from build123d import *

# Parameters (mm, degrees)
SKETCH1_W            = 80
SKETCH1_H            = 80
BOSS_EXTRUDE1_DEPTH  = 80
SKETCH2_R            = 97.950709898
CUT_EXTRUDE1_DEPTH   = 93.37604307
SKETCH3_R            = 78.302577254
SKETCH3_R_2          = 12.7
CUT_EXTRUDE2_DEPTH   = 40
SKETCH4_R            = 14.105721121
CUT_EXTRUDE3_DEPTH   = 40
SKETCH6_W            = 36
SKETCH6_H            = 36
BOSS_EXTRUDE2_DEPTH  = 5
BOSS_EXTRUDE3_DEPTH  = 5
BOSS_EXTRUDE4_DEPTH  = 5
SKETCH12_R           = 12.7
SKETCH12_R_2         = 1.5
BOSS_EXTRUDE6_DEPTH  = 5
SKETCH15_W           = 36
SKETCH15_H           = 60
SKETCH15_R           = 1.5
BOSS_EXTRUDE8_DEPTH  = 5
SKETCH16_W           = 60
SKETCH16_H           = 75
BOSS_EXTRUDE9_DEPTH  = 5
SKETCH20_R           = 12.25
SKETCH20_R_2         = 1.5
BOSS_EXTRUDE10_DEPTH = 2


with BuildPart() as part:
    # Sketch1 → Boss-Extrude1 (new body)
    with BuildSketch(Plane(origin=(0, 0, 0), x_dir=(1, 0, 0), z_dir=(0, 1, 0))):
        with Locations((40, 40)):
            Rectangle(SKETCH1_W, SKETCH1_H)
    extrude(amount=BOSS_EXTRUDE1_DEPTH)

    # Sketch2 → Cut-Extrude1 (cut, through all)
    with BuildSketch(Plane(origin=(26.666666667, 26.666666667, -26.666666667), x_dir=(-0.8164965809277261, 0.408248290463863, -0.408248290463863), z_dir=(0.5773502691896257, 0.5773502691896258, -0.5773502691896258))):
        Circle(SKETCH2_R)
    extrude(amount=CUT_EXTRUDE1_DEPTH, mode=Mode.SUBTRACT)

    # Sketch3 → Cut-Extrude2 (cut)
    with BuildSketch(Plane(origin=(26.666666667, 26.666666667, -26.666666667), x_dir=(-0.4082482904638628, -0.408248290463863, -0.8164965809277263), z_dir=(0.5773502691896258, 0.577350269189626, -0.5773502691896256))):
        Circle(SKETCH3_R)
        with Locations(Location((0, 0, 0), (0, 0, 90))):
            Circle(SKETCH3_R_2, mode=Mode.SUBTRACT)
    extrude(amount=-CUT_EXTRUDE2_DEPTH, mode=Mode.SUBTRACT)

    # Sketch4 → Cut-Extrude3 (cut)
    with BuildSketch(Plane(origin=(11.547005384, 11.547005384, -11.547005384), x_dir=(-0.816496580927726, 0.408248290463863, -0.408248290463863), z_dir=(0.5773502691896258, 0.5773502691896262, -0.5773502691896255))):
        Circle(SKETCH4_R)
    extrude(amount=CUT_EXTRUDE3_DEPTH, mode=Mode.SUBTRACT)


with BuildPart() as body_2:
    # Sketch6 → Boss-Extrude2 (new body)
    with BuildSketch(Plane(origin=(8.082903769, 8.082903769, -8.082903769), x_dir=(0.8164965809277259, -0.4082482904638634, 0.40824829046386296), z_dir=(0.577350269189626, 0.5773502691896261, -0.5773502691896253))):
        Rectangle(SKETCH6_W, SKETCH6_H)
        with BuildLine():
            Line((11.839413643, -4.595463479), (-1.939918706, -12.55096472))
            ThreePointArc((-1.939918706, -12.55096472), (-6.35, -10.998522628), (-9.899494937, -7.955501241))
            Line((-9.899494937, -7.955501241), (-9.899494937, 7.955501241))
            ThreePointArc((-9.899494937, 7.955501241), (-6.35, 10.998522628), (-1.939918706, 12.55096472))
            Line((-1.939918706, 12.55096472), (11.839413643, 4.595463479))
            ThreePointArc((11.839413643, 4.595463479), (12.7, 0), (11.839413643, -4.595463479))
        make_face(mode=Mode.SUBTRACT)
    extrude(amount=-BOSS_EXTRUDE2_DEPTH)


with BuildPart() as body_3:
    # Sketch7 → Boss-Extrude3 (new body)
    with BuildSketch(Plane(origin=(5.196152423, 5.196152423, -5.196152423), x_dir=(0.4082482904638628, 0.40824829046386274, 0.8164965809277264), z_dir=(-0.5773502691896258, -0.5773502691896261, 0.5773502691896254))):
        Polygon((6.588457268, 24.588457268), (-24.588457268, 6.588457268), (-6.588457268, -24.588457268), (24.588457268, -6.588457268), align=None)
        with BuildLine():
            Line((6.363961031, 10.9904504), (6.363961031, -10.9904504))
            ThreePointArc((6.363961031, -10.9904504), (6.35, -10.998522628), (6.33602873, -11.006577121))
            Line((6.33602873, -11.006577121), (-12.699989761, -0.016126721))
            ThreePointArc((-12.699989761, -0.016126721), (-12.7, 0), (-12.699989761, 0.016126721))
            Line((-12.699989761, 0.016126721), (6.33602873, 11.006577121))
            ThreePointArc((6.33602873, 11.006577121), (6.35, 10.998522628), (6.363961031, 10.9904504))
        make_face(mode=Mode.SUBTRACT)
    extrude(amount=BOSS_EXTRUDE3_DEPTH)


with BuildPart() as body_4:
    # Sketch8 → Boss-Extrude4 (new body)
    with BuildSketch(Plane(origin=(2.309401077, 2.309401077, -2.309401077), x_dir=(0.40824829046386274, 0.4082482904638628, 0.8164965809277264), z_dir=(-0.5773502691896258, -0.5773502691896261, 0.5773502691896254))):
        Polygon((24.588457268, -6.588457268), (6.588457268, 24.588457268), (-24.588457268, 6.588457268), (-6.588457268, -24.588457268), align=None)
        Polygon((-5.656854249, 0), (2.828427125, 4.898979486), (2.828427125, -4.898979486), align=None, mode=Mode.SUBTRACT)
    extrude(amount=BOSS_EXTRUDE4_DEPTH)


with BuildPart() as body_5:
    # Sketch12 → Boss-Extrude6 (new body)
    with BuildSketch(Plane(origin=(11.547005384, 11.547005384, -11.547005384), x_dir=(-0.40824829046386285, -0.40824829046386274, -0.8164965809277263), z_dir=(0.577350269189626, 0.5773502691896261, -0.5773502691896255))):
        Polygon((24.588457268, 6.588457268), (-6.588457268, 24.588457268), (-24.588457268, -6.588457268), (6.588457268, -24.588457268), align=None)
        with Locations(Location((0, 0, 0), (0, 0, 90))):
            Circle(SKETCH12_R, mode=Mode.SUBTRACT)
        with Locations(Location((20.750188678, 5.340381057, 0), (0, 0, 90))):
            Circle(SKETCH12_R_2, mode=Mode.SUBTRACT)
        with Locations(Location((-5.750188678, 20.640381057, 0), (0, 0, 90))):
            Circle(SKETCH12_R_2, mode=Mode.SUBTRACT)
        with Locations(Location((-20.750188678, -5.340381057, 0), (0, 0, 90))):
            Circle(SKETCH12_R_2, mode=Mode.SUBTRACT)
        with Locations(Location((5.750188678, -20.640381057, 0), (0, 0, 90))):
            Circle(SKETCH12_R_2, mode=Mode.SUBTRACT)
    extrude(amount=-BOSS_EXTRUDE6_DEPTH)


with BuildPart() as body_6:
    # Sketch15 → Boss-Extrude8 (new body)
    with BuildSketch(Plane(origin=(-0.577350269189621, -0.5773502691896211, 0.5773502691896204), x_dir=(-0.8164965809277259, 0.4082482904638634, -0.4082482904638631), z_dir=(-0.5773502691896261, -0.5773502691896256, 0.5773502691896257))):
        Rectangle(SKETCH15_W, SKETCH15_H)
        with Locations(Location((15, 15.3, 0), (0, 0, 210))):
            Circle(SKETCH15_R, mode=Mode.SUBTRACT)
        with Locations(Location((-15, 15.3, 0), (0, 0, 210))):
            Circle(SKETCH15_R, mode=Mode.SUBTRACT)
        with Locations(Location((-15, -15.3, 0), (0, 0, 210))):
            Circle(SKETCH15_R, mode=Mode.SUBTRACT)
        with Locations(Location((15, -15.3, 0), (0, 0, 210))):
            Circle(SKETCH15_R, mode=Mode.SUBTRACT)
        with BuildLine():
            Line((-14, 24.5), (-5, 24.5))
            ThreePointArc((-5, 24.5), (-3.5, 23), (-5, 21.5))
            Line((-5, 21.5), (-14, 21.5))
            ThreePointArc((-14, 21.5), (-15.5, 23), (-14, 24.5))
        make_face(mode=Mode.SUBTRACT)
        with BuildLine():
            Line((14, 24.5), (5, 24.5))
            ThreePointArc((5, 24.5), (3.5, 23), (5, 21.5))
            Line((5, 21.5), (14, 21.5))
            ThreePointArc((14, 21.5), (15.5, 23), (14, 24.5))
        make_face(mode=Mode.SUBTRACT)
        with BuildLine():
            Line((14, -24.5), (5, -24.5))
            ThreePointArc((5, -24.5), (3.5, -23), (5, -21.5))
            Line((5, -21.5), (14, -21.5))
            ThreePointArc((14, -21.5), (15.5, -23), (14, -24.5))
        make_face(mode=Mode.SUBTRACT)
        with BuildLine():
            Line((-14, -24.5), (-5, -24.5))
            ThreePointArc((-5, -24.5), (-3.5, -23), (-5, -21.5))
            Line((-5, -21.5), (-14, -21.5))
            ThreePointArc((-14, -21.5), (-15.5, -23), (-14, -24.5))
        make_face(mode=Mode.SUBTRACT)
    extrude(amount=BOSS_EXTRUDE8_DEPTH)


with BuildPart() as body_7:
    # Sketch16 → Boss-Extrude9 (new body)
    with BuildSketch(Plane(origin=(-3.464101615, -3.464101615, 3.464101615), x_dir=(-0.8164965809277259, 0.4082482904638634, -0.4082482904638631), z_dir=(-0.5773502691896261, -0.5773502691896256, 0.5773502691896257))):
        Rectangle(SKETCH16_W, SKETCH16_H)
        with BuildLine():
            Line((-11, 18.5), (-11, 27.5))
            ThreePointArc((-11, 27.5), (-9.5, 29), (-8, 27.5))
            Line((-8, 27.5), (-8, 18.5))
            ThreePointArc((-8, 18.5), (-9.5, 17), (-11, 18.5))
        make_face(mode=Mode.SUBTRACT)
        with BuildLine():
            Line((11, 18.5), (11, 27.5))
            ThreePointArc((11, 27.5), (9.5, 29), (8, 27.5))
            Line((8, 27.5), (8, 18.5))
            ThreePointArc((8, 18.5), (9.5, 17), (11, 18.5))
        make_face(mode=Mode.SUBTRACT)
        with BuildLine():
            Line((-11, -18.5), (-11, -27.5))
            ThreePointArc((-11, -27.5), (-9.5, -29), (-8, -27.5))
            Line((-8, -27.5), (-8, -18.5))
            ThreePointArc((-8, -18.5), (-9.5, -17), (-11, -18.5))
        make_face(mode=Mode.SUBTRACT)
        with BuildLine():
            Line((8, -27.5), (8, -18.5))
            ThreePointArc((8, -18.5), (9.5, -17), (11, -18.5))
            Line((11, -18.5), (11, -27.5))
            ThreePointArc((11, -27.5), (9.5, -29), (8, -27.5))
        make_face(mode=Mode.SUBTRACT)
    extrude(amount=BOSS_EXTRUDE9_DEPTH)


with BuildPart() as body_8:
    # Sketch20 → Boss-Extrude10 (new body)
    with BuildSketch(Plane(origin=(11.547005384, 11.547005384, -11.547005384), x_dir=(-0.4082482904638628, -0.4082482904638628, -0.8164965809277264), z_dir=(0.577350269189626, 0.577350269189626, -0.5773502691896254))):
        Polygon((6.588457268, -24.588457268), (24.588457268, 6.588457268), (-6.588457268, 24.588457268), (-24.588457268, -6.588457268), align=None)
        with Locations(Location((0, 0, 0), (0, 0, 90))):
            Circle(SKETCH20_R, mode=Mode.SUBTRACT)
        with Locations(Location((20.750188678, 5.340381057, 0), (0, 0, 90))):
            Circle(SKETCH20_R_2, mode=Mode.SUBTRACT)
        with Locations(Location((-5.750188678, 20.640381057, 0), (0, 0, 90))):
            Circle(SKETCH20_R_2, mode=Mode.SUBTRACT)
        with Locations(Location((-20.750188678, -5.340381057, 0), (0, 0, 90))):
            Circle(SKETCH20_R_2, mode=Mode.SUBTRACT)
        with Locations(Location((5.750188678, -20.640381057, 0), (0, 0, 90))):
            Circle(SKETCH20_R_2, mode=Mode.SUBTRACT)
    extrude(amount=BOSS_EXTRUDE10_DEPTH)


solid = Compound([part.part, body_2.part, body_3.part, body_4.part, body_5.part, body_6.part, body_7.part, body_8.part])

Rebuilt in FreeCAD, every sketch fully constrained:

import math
import FreeCAD as App
import Part
import Sketcher

V = App.Vector
Q = App.Units.Quantity


def add_polygon(sketch, points):
    """Adds a closed chain of lines whose ends are joined by coincident constraints."""
    first, n = sketch.GeometryCount, len(points)
    for a, b in zip(points, points[1:] + points[:1]):
        sketch.addGeometry(Part.LineSegment(App.Vector(*a, 0), App.Vector(*b, 0)), False)
    for i in range(n):
        sketch.addConstraint(Sketcher.Constraint("Coincident", first + i, 2, first + (i + 1) % n, 1))

doc = App.newDocument("Part")
body = doc.addObject("PartDesign::Body", "Body")

sketch1 = body.newObject("Sketcher::SketchObject", "Sketch")
sketch1.AttachmentSupport = (doc.getObject("XZ_Plane"), [""])
sketch1.MapMode = "FlatFace"
add_polygon(sketch1, [(0, -80), (0, 0), (80, 0), (80, -80)])
sketch1.addConstraint([
    Sketcher.Constraint("Vertical", 0),
    Sketcher.Constraint("Horizontal", 1),
    Sketcher.Constraint("Vertical", 2),
    Sketcher.Constraint("Horizontal", 3),
    Sketcher.Constraint("Coincident", 0, 2, -1, 1),
    Sketcher.Constraint("Equal", 3, 0),
    Sketcher.Constraint("DistanceX", 1, 1, 1, 2, 80.0),
])
pad1 = body.newObject("PartDesign::Pad", "Pad")
pad1.Profile = sketch1
pad1.Length = 80
pad1.Reversed = True

sketch2 = body.newObject("Sketcher::SketchObject", "Sketch001")
sketch2.Placement = App.Placement(V(26.666667, 26.666667, -26.666667), App.Rotation(V(-0.816496581, 0.40824829, -0.40824829), V(0, 0.707106781, 0.707106781), V(0.577350269, 0.577350269, -0.577350269), "ZXY"))
sketch2.addGeometry(Part.Circle(V(0, 0, 0), V(0, 0, 1), 98), False)
sketch2.addConstraint([
    Sketcher.Constraint("Coincident", 0, 3, -1, 1),
    Sketcher.Constraint("Diameter", 0, 195.90142),
])
pocket1 = body.newObject("PartDesign::Pocket", "Pocket")
pocket1.Profile = sketch2
pocket1.Type = "ThroughAll"
pocket1.Reversed = True

sketch3 = body.newObject("Sketcher::SketchObject", "Sketch002")
sketch3.Placement = App.Placement(V(26.666667, 26.666667, -26.666667), App.Rotation(V(-0.40824829, -0.40824829, -0.816496581), V(-0.707106781, 0.707106781, 0), V(0.577350269, 0.577350269, -0.577350269), "ZXY"))
sketch3.addGeometry([
    Part.Circle(V(0, 0, 0), V(0, 0, 1), 78),
    Part.Circle(V(0, 0, 0), V(0, 0, 1), 13),
], False)
sketch3.addConstraint([
    Sketcher.Constraint("Coincident", 0, 3, -1, 1),
    Sketcher.Constraint("Coincident", 1, 3, -1, 1),
    Sketcher.Constraint("Diameter", 1, 25.4),
    Sketcher.Constraint("Diameter", 0, 156.605155),
])
pocket2 = body.newObject("PartDesign::Pocket", "Pocket001")
pocket2.Profile = sketch3
pocket2.Length = 40

sketch4 = body.newObject("Sketcher::SketchObject", "Sketch003")
sketch4.Placement = App.Placement(V(11.547005, 11.547005, -11.547005), App.Rotation(V(-0.816496581, 0.40824829, -0.40824829), V(0, 0.707106781, 0.707106781), V(0.577350269, 0.577350269, -0.577350269), "ZXY"))
sketch4.addGeometry(Part.Circle(V(0, 0, 0), V(0, 0, 1), 14), False)
sketch4.addConstraint([
    Sketcher.Constraint("Coincident", 0, 3, -1, 1),
    Sketcher.Constraint("Diameter", 0, 28.211442),
])
pocket3 = body.newObject("PartDesign::Pocket", "Pocket002")
pocket3.Profile = sketch4
pocket3.Length = 40
pocket3.Reversed = True
body2 = doc.addObject("PartDesign::Body", "Body001")

sketch5 = body2.newObject("Sketcher::SketchObject", "Sketch004")
sketch5.Placement = App.Placement(V(8.082904, 8.082904, -8.082904), App.Rotation(V(0.816496581, -0.40824829, 0.40824829), V(0, -0.707106781, -0.707106781), V(0.577350269, 0.577350269, -0.577350269), "ZXY"))
add_polygon(sketch5, [(-18, 18), (-18, -18), (18, -18), (18, 18)])
sketch5.addGeometry(Part.ArcOfCircle(Part.Circle(V(0, 0, 0), V(0, 0, 1), 13), math.radians(-21), math.radians(21)), False)
sketch5.addGeometry(Part.LineSegment(V(12, -5, 0), V(-2, -13, 0)), False)
sketch5.addGeometry(Part.ArcOfCircle(Part.Circle(V(0, 0, 0), V(0, 0, 1), 13), math.radians(-141), math.radians(-99)), False)
sketch5.addGeometry(Part.LineSegment(V(-10, -8, 0), V(-10, 8, 0)), False)
sketch5.addGeometry(Part.ArcOfCircle(Part.Circle(V(0, 0, 0), V(0, 0, 1), 13), math.radians(99), math.radians(141)), False)
sketch5.addGeometry(Part.LineSegment(V(-2, 13, 0), V(12, 5, 0)), False)
sketch5.addConstraint([
    Sketcher.Constraint("Coincident", 4, 1, 5, 1),
    Sketcher.Constraint("Coincident", 5, 2, 6, 2),
    Sketcher.Constraint("Coincident", 6, 1, 7, 1),
    Sketcher.Constraint("Coincident", 7, 2, 8, 2),
    Sketcher.Constraint("Coincident", 8, 1, 9, 1),
    Sketcher.Constraint("Coincident", 9, 2, 4, 2),
    Sketcher.Constraint("Vertical", 0),
    Sketcher.Constraint("Horizontal", 1),
    Sketcher.Constraint("Vertical", 2),
    Sketcher.Constraint("Horizontal", 3),
    Sketcher.Constraint("Vertical", 7),
    Sketcher.Constraint("Coincident", 4, 3, -1, 1),
    Sketcher.Constraint("Coincident", 6, 3, -1, 1),
    Sketcher.Constraint("Coincident", 8, 3, -1, 1),
    Sketcher.Constraint("Equal", 4, 6),
    Sketcher.Constraint("Equal", 6, 8),
    Sketcher.Constraint("Symmetric", 0, 2, 2, 2, -1, 1),
    Sketcher.Constraint("Vertical", 5, 2, 8, 1),
    Sketcher.Constraint("Vertical", 4, 1, 9, 2),
    Sketcher.Constraint("Equal", 3, 0),
    Sketcher.Constraint("Radius", 4, 12.7),
    Sketcher.Constraint("DistanceX", 1, 1, 1, 2, 36.0),
    Sketcher.Constraint("Angle", 5, Q("-150 deg")),
    Sketcher.Constraint("DistanceY", 6, 1, -1, 1, 7.955501),
    Sketcher.Constraint("DistanceY", 5, 2, 4, 1, 7.955501),
])
pad2 = body2.newObject("PartDesign::Pad", "Pad001")
pad2.Profile = sketch5
pad2.Length = 5
pad2.Reversed = True
body3 = doc.addObject("PartDesign::Body", "Body002")

sketch6 = body3.newObject("Sketcher::SketchObject", "Sketch005")
sketch6.Placement = App.Placement(V(5.196152, 5.196152, -5.196152), App.Rotation(V(0.40824829, 0.40824829, 0.816496581), V(-0.707106781, 0.707106781, 0), V(-0.577350269, -0.577350269, 0.577350269), "ZXY"))
add_polygon(sketch6, [(6.588457, 24.588457), (-24.588457, 6.588457), (-6.588457, -24.588457), (24.588457, -6.588457)])
sketch6.addGeometry(Part.ArcOfCircle(Part.Circle(V(0.000127, 0.00022, 0), V(0, 0, 1), 12.699746), math.radians(59.927244), math.radians(60.072758)), False)
sketch6.addGeometry(Part.LineSegment(V(6.363961, 10.99045, 0), V(6.363961, -10.99045, 0)), False)
sketch6.addGeometry(Part.ArcOfCircle(Part.Circle(V(0.000127, -0.00022, 0), V(0, 0, 1), 12.699746), math.radians(-60.072758), math.radians(-59.927244)), False)
sketch6.addGeometry(Part.LineSegment(V(6.336029, -11.006577, 0), V(-12.69999, -0.016127, 0)), False)
sketch6.addGeometry(Part.ArcOfCircle(Part.Circle(V(0.000031, 0, 0), V(0, 0, 1), 12.700031), math.radians(179.927245), math.radians(180.072755)), False)
sketch6.addGeometry(Part.LineSegment(V(-12.69999, 0.016127, 0), V(6.336029, 11.006577, 0)), False)
sketch6.addConstraint([
    Sketcher.Constraint("Coincident", 4, 1, 5, 1),
    Sketcher.Constraint("Coincident", 5, 2, 6, 2),
    Sketcher.Constraint("Coincident", 6, 1, 7, 1),
    Sketcher.Constraint("Coincident", 7, 2, 8, 2),
    Sketcher.Constraint("Coincident", 8, 1, 9, 1),
    Sketcher.Constraint("Coincident", 9, 2, 4, 2),
    Sketcher.Constraint("Vertical", 5),
    Sketcher.Constraint("Equal", 4, 6),
    Sketcher.Constraint("Symmetric", 0, 2, 2, 2, -1, 1),
    Sketcher.Constraint("Symmetric", 1, 2, 3, 2, -1, 1),
    Sketcher.Constraint("Symmetric", 4, 3, 6, 3, -1),
    Sketcher.Constraint("PointOnObject", 8, 3, -1),
    Sketcher.Constraint("Perpendicular", 0, 1),
    Sketcher.Constraint("Perpendicular", 3, 9),
    Sketcher.Constraint("Vertical", 6, 1, 9, 2),
    Sketcher.Constraint("Equal", 0, 1),
    Sketcher.Constraint("Equal", 7, 9),
    Sketcher.Constraint("Angle", 0, Q("-150 deg")),
    Sketcher.Constraint("Distance", 0, 36.0),
    Sketcher.Constraint("Radius", 8, 12.700031),
    Sketcher.Constraint("DistanceY", 5, 2, 5, 1, 21.980901),
    Sketcher.Constraint("Radius", 4, 12.699746),
    Sketcher.Constraint("Distance", 7, 21.980901),
    Sketcher.Constraint("DistanceX", 6, 3, 6, 1, 6.335902),
    Sketcher.Constraint("DistanceY", -1, 1, 4, 3, 0.00022),
    Sketcher.Constraint("DistanceX", -1, 1, 4, 1, 6.363961),
])
pad3 = body3.newObject("PartDesign::Pad", "Pad002")
pad3.Profile = sketch6
pad3.Length = 5
body4 = doc.addObject("PartDesign::Body", "Body003")

sketch7 = body4.newObject("Sketcher::SketchObject", "Sketch006")
sketch7.Placement = App.Placement(V(2.309401, 2.309401, -2.309401), App.Rotation(V(0.40824829, 0.40824829, 0.816496581), V(-0.707106781, 0.707106781, 0), V(-0.577350269, -0.577350269, 0.577350269), "ZXY"))
add_polygon(sketch7, [(25, -7), (7, 25), (-25, 7), (-7, -25)])
add_polygon(sketch7, [(3, -5), (-6, 0), (3, 5)])
sketch7.addConstraint([
    Sketcher.Constraint("Vertical", 6),
    Sketcher.Constraint("Symmetric", 0, 2, 2, 2, -1, 1),
    Sketcher.Constraint("Symmetric", 1, 2, 3, 2, -1, 1),
    Sketcher.Constraint("PointOnObject", 4, 2, -1),
    Sketcher.Constraint("Perpendicular", 0, 1),
    Sketcher.Constraint("Parallel", 3, 5),
    Sketcher.Constraint("Equal", 0, 1),
    Sketcher.Constraint("Equal", 4, 5),
    Sketcher.Constraint("Angle", 0, Q("120 deg")),
    Sketcher.Constraint("Distance", 0, 36.0),
    Sketcher.Constraint("DistanceY", 6, 2, 6, 1, 9.797959),
    Sketcher.Constraint("DistanceX", 4, 2, 0, 2, 12.245312),
])
pad4 = body4.newObject("PartDesign::Pad", "Pad003")
pad4.Profile = sketch7
pad4.Length = 5
body5 = doc.addObject("PartDesign::Body", "Body004")

sketch8 = body5.newObject("Sketcher::SketchObject", "Sketch007")
sketch8.Placement = App.Placement(V(11.547005, 11.547005, -11.547005), App.Rotation(V(-0.40824829, -0.40824829, -0.816496581), V(-0.707106781, 0.707106781, 0), V(0.577350269, 0.577350269, -0.577350269), "ZXY"))
add_polygon(sketch8, [(24.6, 6.6), (-6.6, 24.6), (-24.6, -6.6), (6.6, -24.6)])
sketch8.addGeometry(Part.Circle(V(-20.8, -5.3, 0), V(0, 0, 1), 1.5), False)
sketch8.addGeometry(Part.Circle(V(5.8, -20.6, 0), V(0, 0, 1), 1.5), False)
sketch8.addGeometry(Part.Circle(V(0, 0, 0), V(0, 0, 1), 12.7), False)
sketch8.addGeometry(Part.Circle(V(-5.8, 20.6, 0), V(0, 0, 1), 1.5), False)
sketch8.addGeometry(Part.Circle(V(20.8, 5.3, 0), V(0, 0, 1), 1.5), False)
sketch8.addConstraint([
    Sketcher.Constraint("Coincident", 6, 3, -1, 1),
    Sketcher.Constraint("Equal", 4, 5),
    Sketcher.Constraint("Equal", 5, 7),
    Sketcher.Constraint("Equal", 7, 8),
    Sketcher.Constraint("Symmetric", 5, 3, 7, 3, -1, 1),
    Sketcher.Constraint("Symmetric", 4, 3, 8, 3, -1, 1),
    Sketcher.Constraint("Symmetric", 0, 2, 2, 2, -1, 1),
    Sketcher.Constraint("Symmetric", 1, 2, 3, 2, -1, 1),
    Sketcher.Constraint("Perpendicular", 0, 1),
    Sketcher.Constraint("Equal", 0, 1),
    Sketcher.Constraint("Diameter", 4, 3.0),
    Sketcher.Constraint("Diameter", 6, 25.4),
    Sketcher.Constraint("Angle", 0, Q("150 deg")),
    Sketcher.Constraint("Distance", 0, 36.0),
    Sketcher.Constraint("DistanceX", 4, 3, 7, 3, 15.0),
    Sketcher.Constraint("DistanceY", 5, 3, 4, 3, 15.3),
    Sketcher.Constraint("DistanceX", 4, 3, -1, 1, 20.750189),
    Sketcher.Constraint("DistanceY", 4, 3, -1, 1, 5.340381),
])
pad5 = body5.newObject("PartDesign::Pad", "Pad004")
pad5.Profile = sketch8
pad5.Length = 5
pad5.Reversed = True
body6 = doc.addObject("PartDesign::Body", "Body005")

sketch9 = body6.newObject("Sketcher::SketchObject", "Sketch008")
sketch9.Placement = App.Placement(V(-0.57735, -0.57735, 0.57735), App.Rotation(V(-0.816496581, 0.40824829, -0.40824829), V(0, -0.707106781, -0.707106781), V(-0.577350269, -0.577350269, 0.577350269), "ZXY"))
add_polygon(sketch9, [(-18, 30), (-18, -30), (18, -30), (18, 30)])
sketch9.addGeometry(Part.LineSegment(V(-5, -24.5, 0), V(-14, -24.5, 0)), False)
sketch9.addGeometry(Part.ArcOfCircle(Part.Circle(V(-14, -23, 0), V(0, 0, 1), 1.5), math.radians(90), math.radians(270)), False)
sketch9.addGeometry(Part.LineSegment(V(-14, -21.5, 0), V(-5, -21.5, 0)), False)
sketch9.addGeometry(Part.ArcOfCircle(Part.Circle(V(-5, -23, 0), V(0, 0, 1), 1.5), math.radians(-90), math.radians(90)), False)
sketch9.addGeometry(Part.Circle(V(-15, -15.3, 0), V(0, 0, 1), 1.5), False)
sketch9.addGeometry(Part.ArcOfCircle(Part.Circle(V(14, -23, 0), V(0, 0, 1), 1.5), math.radians(-90), math.radians(90)), False)
sketch9.addGeometry(Part.LineSegment(V(14, -24.5, 0), V(5, -24.5, 0)), False)
sketch9.addGeometry(Part.ArcOfCircle(Part.Circle(V(5, -23, 0), V(0, 0, 1), 1.5), math.radians(90), math.radians(270)), False)
sketch9.addGeometry(Part.LineSegment(V(5, -21.5, 0), V(14, -21.5, 0)), False)
sketch9.addGeometry(Part.Circle(V(15, -15.3, 0), V(0, 0, 1), 1.5), False)
sketch9.addGeometry(Part.Circle(V(-15, 15.3, 0), V(0, 0, 1), 1.5), False)
sketch9.addGeometry(Part.ArcOfCircle(Part.Circle(V(-14, 23, 0), V(0, 0, 1), 1.5), math.radians(90), math.radians(270)), False)
sketch9.addGeometry(Part.LineSegment(V(-14, 24.5, 0), V(-5, 24.5, 0)), False)
sketch9.addGeometry(Part.ArcOfCircle(Part.Circle(V(-5, 23, 0), V(0, 0, 1), 1.5), math.radians(-90), math.radians(90)), False)
sketch9.addGeometry(Part.LineSegment(V(-5, 21.5, 0), V(-14, 21.5, 0)), False)
sketch9.addGeometry(Part.Circle(V(15, 15.3, 0), V(0, 0, 1), 1.5), False)
sketch9.addGeometry(Part.LineSegment(V(5, 24.5, 0), V(14, 24.5, 0)), False)
sketch9.addGeometry(Part.ArcOfCircle(Part.Circle(V(14, 23, 0), V(0, 0, 1), 1.5), math.radians(-90), math.radians(90)), False)
sketch9.addGeometry(Part.LineSegment(V(14, 21.5, 0), V(5, 21.5, 0)), False)
sketch9.addGeometry(Part.ArcOfCircle(Part.Circle(V(5, 23, 0), V(0, 0, 1), 1.5), math.radians(90), math.radians(270)), False)
sketch9.addConstraint([
    Sketcher.Constraint("Tangent", 4, 2, 5, 2),
    Sketcher.Constraint("Tangent", 5, 1, 6, 1),
    Sketcher.Constraint("Tangent", 6, 2, 7, 2),
    Sketcher.Constraint("Tangent", 7, 1, 4, 1),
    Sketcher.Constraint("Tangent", 9, 1, 10, 1),
    Sketcher.Constraint("Tangent", 10, 2, 11, 2),
    Sketcher.Constraint("Tangent", 11, 1, 12, 1),
    Sketcher.Constraint("Tangent", 12, 2, 9, 2),
    Sketcher.Constraint("Tangent", 15, 1, 16, 1),
    Sketcher.Constraint("Tangent", 16, 2, 17, 2),
    Sketcher.Constraint("Tangent", 17, 1, 18, 1),
    Sketcher.Constraint("Tangent", 18, 2, 15, 2),
    Sketcher.Constraint("Tangent", 20, 2, 21, 2),
    Sketcher.Constraint("Tangent", 21, 1, 22, 1),
    Sketcher.Constraint("Tangent", 22, 2, 23, 2),
    Sketcher.Constraint("Tangent", 23, 1, 20, 1),
    Sketcher.Constraint("Vertical", 0),
    Sketcher.Constraint("Horizontal", 1),
    Sketcher.Constraint("Vertical", 2),
    Sketcher.Constraint("Horizontal", 3),
    Sketcher.Constraint("Horizontal", 4),
    Sketcher.Constraint("Horizontal", 6),
    Sketcher.Constraint("Horizontal", 10),
    Sketcher.Constraint("Horizontal", 12),
    Sketcher.Constraint("Horizontal", 16),
    Sketcher.Constraint("Horizontal", 18),
    Sketcher.Constraint("Horizontal", 20),
    Sketcher.Constraint("Horizontal", 22),
    Sketcher.Constraint("Equal", 7, 8),
    Sketcher.Constraint("Equal", 8, 9),
    Sketcher.Constraint("Equal", 11, 13),
    Sketcher.Constraint("Equal", 13, 14),
    Sketcher.Constraint("Equal", 14, 15),
    Sketcher.Constraint("Equal", 17, 19),
    Sketcher.Constraint("Equal", 19, 21),
    Sketcher.Constraint("Symmetric", 13, 3, 14, 3, -1, 1),
    Sketcher.Constraint("Symmetric", 9, 3, 15, 3, -1, 1),
    Sketcher.Constraint("Symmetric", 8, 3, 19, 3, -1, 1),
    Sketcher.Constraint("Symmetric", 5, 3, 21, 3, -1, 1),
    Sketcher.Constraint("Symmetric", 0, 2, 2, 2, -1, 1),
    Sketcher.Constraint("Symmetric", 5, 3, 9, 3, -2),
    Sketcher.Constraint("Symmetric", 8, 3, 13, 3, -2),
    Sketcher.Constraint("Vertical", 7, 3, 17, 3),
    Sketcher.Constraint("Vertical", 11, 3, 23, 3),
    Sketcher.Constraint("Equal", 6, 10),
    Sketcher.Constraint("Diameter", 8, 3.0),
    Sketcher.Constraint("DistanceX", 1, 1, 1, 2, 36.0),
    Sketcher.Constraint("DistanceX", 4, 2, 4, 1, 9.0),
    Sketcher.Constraint("DistanceY", 0, 2, 0, 1, 60.0),
    Sketcher.Constraint("DistanceX", 5, 3, -1, 1, 14.0),
    Sketcher.Constraint("DistanceY", 5, 3, -1, 1, 23.0),
    Sketcher.Constraint("DistanceX", 8, 3, -1, 1, 15.0),
    Sketcher.Constraint("DistanceY", 8, 3, -1, 1, 15.3),
])
pad6 = body6.newObject("PartDesign::Pad", "Pad005")
pad6.Profile = sketch9
pad6.Length = 5
body7 = doc.addObject("PartDesign::Body", "Body006")

sketch10 = body7.newObject("Sketcher::SketchObject", "Sketch009")
sketch10.Placement = App.Placement(V(-3.464102, -3.464102, 3.464102), App.Rotation(V(-0.816496581, 0.40824829, -0.40824829), V(0, -0.707106781, -0.707106781), V(-0.577350269, -0.577350269, 0.577350269), "ZXY"))
add_polygon(sketch10, [(-30, 37.5), (-30, -37.5), (30, -37.5), (30, 37.5)])
sketch10.addGeometry(Part.LineSegment(V(-11, -27.5, 0), V(-11, -18.5, 0)), False)
sketch10.addGeometry(Part.ArcOfCircle(Part.Circle(V(-9.5, -18.5, 0), V(0, 0, 1), 1.5), math.radians(0), math.radians(180)), False)
sketch10.addGeometry(Part.LineSegment(V(-8, -18.5, 0), V(-8, -27.5, 0)), False)
sketch10.addGeometry(Part.ArcOfCircle(Part.Circle(V(-9.5, -27.5, 0), V(0, 0, 1), 1.5), math.radians(180), math.radians(360)), False)
sketch10.addGeometry(Part.ArcOfCircle(Part.Circle(V(9.5, -27.5, 0), V(0, 0, 1), 1.5), math.radians(180), math.radians(360)), False)
sketch10.addGeometry(Part.LineSegment(V(8, -27.5, 0), V(8, -18.5, 0)), False)
sketch10.addGeometry(Part.ArcOfCircle(Part.Circle(V(9.5, -18.5, 0), V(0, 0, 1), 1.5), math.radians(0), math.radians(180)), False)
sketch10.addGeometry(Part.LineSegment(V(11, -18.5, 0), V(11, -27.5, 0)), False)
sketch10.addGeometry(Part.ArcOfCircle(Part.Circle(V(-9.5, 18.5, 0), V(0, 0, 1), 1.5), math.radians(180), math.radians(360)), False)
sketch10.addGeometry(Part.LineSegment(V(-11, 18.5, 0), V(-11, 27.5, 0)), False)
sketch10.addGeometry(Part.ArcOfCircle(Part.Circle(V(-9.5, 27.5, 0), V(0, 0, 1), 1.5), math.radians(0), math.radians(180)), False)
sketch10.addGeometry(Part.LineSegment(V(-8, 27.5, 0), V(-8, 18.5, 0)), False)
sketch10.addGeometry(Part.LineSegment(V(11, 27.5, 0), V(11, 18.5, 0)), False)
sketch10.addGeometry(Part.ArcOfCircle(Part.Circle(V(9.5, 18.5, 0), V(0, 0, 1), 1.5), math.radians(180), math.radians(360)), False)
sketch10.addGeometry(Part.LineSegment(V(8, 18.5, 0), V(8, 27.5, 0)), False)
sketch10.addGeometry(Part.ArcOfCircle(Part.Circle(V(9.5, 27.5, 0), V(0, 0, 1), 1.5), math.radians(0), math.radians(180)), False)
sketch10.addConstraint([
    Sketcher.Constraint("Tangent", 4, 2, 5, 2),
    Sketcher.Constraint("Tangent", 5, 1, 6, 1),
    Sketcher.Constraint("Tangent", 6, 2, 7, 2),
    Sketcher.Constraint("Tangent", 7, 1, 4, 1),
    Sketcher.Constraint("Tangent", 8, 1, 9, 1),
    Sketcher.Constraint("Tangent", 9, 2, 10, 2),
    Sketcher.Constraint("Tangent", 10, 1, 11, 1),
    Sketcher.Constraint("Tangent", 11, 2, 8, 2),
    Sketcher.Constraint("Tangent", 12, 1, 13, 1),
    Sketcher.Constraint("Tangent", 13, 2, 14, 2),
    Sketcher.Constraint("Tangent", 14, 1, 15, 1),
    Sketcher.Constraint("Tangent", 15, 2, 12, 2),
    Sketcher.Constraint("Tangent", 16, 2, 17, 2),
    Sketcher.Constraint("Tangent", 17, 1, 18, 1),
    Sketcher.Constraint("Tangent", 18, 2, 19, 2),
    Sketcher.Constraint("Tangent", 19, 1, 16, 1),
    Sketcher.Constraint("Vertical", 0),
    Sketcher.Constraint("Horizontal", 1),
    Sketcher.Constraint("Vertical", 2),
    Sketcher.Constraint("Horizontal", 3),
    Sketcher.Constraint("Vertical", 4),
    Sketcher.Constraint("Vertical", 6),
    Sketcher.Constraint("Vertical", 9),
    Sketcher.Constraint("Vertical", 11),
    Sketcher.Constraint("Vertical", 13),
    Sketcher.Constraint("Vertical", 15),
    Sketcher.Constraint("Vertical", 16),
    Sketcher.Constraint("Vertical", 18),
    Sketcher.Constraint("Equal", 7, 8),
    Sketcher.Constraint("Equal", 10, 12),
    Sketcher.Constraint("Equal", 14, 17),
    Sketcher.Constraint("Symmetric", 10, 3, 12, 3, -1, 1),
    Sketcher.Constraint("Symmetric", 5, 3, 17, 3, -1, 1),
    Sketcher.Constraint("Symmetric", 0, 2, 2, 2, -1, 1),
    Sketcher.Constraint("Symmetric", 7, 3, 8, 3, -2),
    Sketcher.Constraint("Horizontal", 5, 3, 10, 3),
    Sketcher.Constraint("Horizontal", 14, 3, 19, 3),
    Sketcher.Constraint("Equal", 11, 13),
    Sketcher.Constraint("Radius", 5, 1.5),
    Sketcher.Constraint("DistanceX", 1, 1, 1, 2, 60.0),
    Sketcher.Constraint("DistanceY", 0, 2, 0, 1, 75.0),
    Sketcher.Constraint("DistanceY", 4, 1, 4, 2, 9.0),
    Sketcher.Constraint("DistanceX", 4, 2, -1, 1, 11.0),
    Sketcher.Constraint("DistanceY", 5, 3, 12, 3, 37.0),
])
pad7 = body7.newObject("PartDesign::Pad", "Pad006")
pad7.Profile = sketch10
pad7.Length = 5
body8 = doc.addObject("PartDesign::Body", "Body007")

sketch11 = body8.newObject("Sketcher::SketchObject", "Sketch010")
sketch11.Placement = App.Placement(V(11.547005, 11.547005, -11.547005), App.Rotation(V(-0.40824829, -0.40824829, -0.816496581), V(-0.707106781, 0.707106781, 0), V(0.577350269, 0.577350269, -0.577350269), "ZXY"))
add_polygon(sketch11, [(6.6, -24.6), (24.6, 6.6), (-6.6, 24.6), (-24.6, -6.6)])
sketch11.addGeometry(Part.Circle(V(-20.8, -5.3, 0), V(0, 0, 1), 1.5), False)
sketch11.addGeometry(Part.Circle(V(5.8, -20.6, 0), V(0, 0, 1), 1.5), False)
sketch11.addGeometry(Part.Circle(V(0, 0, 0), V(0, 0, 1), 12.2), False)
sketch11.addGeometry(Part.Circle(V(-5.8, 20.6, 0), V(0, 0, 1), 1.5), False)
sketch11.addGeometry(Part.Circle(V(20.8, 5.3, 0), V(0, 0, 1), 1.5), False)
sketch11.addConstraint([
    Sketcher.Constraint("Coincident", 6, 3, -1, 1),
    Sketcher.Constraint("Equal", 4, 5),
    Sketcher.Constraint("Equal", 5, 7),
    Sketcher.Constraint("Equal", 7, 8),
    Sketcher.Constraint("Symmetric", 5, 3, 7, 3, -1, 1),
    Sketcher.Constraint("Symmetric", 4, 3, 8, 3, -1, 1),
    Sketcher.Constraint("Symmetric", 0, 2, 2, 2, -1, 1),
    Sketcher.Constraint("Symmetric", 1, 2, 3, 2, -1, 1),
    Sketcher.Constraint("Perpendicular", 0, 1),
    Sketcher.Constraint("Equal", 0, 1),
    Sketcher.Constraint("Diameter", 4, 3.0),
    Sketcher.Constraint("Diameter", 6, 24.5),
    Sketcher.Constraint("Angle", 0, Q("60 deg")),
    Sketcher.Constraint("Distance", 0, 36.0),
    Sketcher.Constraint("DistanceX", 4, 3, 7, 3, 15.0),
    Sketcher.Constraint("DistanceY", 5, 3, 4, 3, 15.3),
    Sketcher.Constraint("DistanceX", 4, 3, -1, 1, 20.750189),
    Sketcher.Constraint("DistanceY", 4, 3, -1, 1, 5.340381),
])
pad8 = body8.newObject("PartDesign::Pad", "Pad007")
pad8.Profile = sketch11
pad8.Length = 2

doc.recompute()
